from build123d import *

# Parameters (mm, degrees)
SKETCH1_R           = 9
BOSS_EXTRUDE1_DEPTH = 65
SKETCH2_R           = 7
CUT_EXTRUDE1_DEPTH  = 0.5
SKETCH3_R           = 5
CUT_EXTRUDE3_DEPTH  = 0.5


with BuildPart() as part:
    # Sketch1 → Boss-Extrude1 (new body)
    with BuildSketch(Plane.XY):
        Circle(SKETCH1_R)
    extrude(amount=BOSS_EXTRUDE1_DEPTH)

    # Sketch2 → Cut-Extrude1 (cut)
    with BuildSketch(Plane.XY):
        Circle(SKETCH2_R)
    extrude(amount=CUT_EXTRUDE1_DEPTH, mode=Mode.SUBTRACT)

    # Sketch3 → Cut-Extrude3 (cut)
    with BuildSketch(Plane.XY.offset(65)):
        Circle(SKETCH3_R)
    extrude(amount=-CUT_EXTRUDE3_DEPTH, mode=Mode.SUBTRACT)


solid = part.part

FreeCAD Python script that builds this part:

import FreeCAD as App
import Part
import Sketcher
from FreeCAD import Vector

doc = App.newDocument("Part")
body = doc.addObject("PartDesign::Body", "Body")

# Sketch on XY plane
sketch1 = body.newObject("Sketcher::SketchObject", "Sketch")
sketch1.AttachmentSupport = (doc.getObject("XY_Plane"), [""])
sketch1.MapMode = "FlatFace"
sketch1.addGeometry(Part.Circle(Vector(0, 0, 0), Vector(0, 0, 1), 9), False)
sketch1.addConstraint([
    Sketcher.Constraint("Coincident", 0, 3, -1, 1),
    Sketcher.Constraint("Diameter", 0, 18.0),
])
pad1 = body.newObject("PartDesign::Pad", "Pad")
pad1.Profile = sketch1
pad1.Length = 65

# Sketch on XY plane
sketch2 = body.newObject("Sketcher::SketchObject", "Sketch001")
sketch2.AttachmentSupport = (doc.getObject("XY_Plane"), [""])
sketch2.MapMode = "FlatFace"
sketch2.addGeometry(Part.Circle(Vector(0, 0, 0), Vector(0, 0, 1), 7), False)
sketch2.addConstraint([
    Sketcher.Constraint("Coincident", 0, 3, -1, 1),
    Sketcher.Constraint("Diameter", 0, 14.0),
])
pocket1 = body.newObject("PartDesign::Pocket", "Pocket")
pocket1.Profile = sketch2
pocket1.Length = 0.5
pocket1.Reversed = True

# Sketch on XY plane
sketch3 = body.newObject("Sketcher::SketchObject", "Sketch002")
sketch3.AttachmentSupport = (doc.getObject("XY_Plane"), [""])
sketch3.MapMode = "FlatFace"
sketch3.AttachmentOffset = App.Placement(Vector(0, 0, 65), App.Rotation())
sketch3.addGeometry(Part.Circle(Vector(0, 0, 0), Vector(0, 0, 1), 5), False)
sketch3.addConstraint([
    Sketcher.Constraint("Coincident", 0, 3, -1, 1),
    Sketcher.Constraint("Diameter", 0, 10.0),
])
pocket2 = body.newObject("PartDesign::Pocket", "Pocket001")
pocket2.Profile = sketch3
pocket2.Length = 0.5

doc.recompute()
